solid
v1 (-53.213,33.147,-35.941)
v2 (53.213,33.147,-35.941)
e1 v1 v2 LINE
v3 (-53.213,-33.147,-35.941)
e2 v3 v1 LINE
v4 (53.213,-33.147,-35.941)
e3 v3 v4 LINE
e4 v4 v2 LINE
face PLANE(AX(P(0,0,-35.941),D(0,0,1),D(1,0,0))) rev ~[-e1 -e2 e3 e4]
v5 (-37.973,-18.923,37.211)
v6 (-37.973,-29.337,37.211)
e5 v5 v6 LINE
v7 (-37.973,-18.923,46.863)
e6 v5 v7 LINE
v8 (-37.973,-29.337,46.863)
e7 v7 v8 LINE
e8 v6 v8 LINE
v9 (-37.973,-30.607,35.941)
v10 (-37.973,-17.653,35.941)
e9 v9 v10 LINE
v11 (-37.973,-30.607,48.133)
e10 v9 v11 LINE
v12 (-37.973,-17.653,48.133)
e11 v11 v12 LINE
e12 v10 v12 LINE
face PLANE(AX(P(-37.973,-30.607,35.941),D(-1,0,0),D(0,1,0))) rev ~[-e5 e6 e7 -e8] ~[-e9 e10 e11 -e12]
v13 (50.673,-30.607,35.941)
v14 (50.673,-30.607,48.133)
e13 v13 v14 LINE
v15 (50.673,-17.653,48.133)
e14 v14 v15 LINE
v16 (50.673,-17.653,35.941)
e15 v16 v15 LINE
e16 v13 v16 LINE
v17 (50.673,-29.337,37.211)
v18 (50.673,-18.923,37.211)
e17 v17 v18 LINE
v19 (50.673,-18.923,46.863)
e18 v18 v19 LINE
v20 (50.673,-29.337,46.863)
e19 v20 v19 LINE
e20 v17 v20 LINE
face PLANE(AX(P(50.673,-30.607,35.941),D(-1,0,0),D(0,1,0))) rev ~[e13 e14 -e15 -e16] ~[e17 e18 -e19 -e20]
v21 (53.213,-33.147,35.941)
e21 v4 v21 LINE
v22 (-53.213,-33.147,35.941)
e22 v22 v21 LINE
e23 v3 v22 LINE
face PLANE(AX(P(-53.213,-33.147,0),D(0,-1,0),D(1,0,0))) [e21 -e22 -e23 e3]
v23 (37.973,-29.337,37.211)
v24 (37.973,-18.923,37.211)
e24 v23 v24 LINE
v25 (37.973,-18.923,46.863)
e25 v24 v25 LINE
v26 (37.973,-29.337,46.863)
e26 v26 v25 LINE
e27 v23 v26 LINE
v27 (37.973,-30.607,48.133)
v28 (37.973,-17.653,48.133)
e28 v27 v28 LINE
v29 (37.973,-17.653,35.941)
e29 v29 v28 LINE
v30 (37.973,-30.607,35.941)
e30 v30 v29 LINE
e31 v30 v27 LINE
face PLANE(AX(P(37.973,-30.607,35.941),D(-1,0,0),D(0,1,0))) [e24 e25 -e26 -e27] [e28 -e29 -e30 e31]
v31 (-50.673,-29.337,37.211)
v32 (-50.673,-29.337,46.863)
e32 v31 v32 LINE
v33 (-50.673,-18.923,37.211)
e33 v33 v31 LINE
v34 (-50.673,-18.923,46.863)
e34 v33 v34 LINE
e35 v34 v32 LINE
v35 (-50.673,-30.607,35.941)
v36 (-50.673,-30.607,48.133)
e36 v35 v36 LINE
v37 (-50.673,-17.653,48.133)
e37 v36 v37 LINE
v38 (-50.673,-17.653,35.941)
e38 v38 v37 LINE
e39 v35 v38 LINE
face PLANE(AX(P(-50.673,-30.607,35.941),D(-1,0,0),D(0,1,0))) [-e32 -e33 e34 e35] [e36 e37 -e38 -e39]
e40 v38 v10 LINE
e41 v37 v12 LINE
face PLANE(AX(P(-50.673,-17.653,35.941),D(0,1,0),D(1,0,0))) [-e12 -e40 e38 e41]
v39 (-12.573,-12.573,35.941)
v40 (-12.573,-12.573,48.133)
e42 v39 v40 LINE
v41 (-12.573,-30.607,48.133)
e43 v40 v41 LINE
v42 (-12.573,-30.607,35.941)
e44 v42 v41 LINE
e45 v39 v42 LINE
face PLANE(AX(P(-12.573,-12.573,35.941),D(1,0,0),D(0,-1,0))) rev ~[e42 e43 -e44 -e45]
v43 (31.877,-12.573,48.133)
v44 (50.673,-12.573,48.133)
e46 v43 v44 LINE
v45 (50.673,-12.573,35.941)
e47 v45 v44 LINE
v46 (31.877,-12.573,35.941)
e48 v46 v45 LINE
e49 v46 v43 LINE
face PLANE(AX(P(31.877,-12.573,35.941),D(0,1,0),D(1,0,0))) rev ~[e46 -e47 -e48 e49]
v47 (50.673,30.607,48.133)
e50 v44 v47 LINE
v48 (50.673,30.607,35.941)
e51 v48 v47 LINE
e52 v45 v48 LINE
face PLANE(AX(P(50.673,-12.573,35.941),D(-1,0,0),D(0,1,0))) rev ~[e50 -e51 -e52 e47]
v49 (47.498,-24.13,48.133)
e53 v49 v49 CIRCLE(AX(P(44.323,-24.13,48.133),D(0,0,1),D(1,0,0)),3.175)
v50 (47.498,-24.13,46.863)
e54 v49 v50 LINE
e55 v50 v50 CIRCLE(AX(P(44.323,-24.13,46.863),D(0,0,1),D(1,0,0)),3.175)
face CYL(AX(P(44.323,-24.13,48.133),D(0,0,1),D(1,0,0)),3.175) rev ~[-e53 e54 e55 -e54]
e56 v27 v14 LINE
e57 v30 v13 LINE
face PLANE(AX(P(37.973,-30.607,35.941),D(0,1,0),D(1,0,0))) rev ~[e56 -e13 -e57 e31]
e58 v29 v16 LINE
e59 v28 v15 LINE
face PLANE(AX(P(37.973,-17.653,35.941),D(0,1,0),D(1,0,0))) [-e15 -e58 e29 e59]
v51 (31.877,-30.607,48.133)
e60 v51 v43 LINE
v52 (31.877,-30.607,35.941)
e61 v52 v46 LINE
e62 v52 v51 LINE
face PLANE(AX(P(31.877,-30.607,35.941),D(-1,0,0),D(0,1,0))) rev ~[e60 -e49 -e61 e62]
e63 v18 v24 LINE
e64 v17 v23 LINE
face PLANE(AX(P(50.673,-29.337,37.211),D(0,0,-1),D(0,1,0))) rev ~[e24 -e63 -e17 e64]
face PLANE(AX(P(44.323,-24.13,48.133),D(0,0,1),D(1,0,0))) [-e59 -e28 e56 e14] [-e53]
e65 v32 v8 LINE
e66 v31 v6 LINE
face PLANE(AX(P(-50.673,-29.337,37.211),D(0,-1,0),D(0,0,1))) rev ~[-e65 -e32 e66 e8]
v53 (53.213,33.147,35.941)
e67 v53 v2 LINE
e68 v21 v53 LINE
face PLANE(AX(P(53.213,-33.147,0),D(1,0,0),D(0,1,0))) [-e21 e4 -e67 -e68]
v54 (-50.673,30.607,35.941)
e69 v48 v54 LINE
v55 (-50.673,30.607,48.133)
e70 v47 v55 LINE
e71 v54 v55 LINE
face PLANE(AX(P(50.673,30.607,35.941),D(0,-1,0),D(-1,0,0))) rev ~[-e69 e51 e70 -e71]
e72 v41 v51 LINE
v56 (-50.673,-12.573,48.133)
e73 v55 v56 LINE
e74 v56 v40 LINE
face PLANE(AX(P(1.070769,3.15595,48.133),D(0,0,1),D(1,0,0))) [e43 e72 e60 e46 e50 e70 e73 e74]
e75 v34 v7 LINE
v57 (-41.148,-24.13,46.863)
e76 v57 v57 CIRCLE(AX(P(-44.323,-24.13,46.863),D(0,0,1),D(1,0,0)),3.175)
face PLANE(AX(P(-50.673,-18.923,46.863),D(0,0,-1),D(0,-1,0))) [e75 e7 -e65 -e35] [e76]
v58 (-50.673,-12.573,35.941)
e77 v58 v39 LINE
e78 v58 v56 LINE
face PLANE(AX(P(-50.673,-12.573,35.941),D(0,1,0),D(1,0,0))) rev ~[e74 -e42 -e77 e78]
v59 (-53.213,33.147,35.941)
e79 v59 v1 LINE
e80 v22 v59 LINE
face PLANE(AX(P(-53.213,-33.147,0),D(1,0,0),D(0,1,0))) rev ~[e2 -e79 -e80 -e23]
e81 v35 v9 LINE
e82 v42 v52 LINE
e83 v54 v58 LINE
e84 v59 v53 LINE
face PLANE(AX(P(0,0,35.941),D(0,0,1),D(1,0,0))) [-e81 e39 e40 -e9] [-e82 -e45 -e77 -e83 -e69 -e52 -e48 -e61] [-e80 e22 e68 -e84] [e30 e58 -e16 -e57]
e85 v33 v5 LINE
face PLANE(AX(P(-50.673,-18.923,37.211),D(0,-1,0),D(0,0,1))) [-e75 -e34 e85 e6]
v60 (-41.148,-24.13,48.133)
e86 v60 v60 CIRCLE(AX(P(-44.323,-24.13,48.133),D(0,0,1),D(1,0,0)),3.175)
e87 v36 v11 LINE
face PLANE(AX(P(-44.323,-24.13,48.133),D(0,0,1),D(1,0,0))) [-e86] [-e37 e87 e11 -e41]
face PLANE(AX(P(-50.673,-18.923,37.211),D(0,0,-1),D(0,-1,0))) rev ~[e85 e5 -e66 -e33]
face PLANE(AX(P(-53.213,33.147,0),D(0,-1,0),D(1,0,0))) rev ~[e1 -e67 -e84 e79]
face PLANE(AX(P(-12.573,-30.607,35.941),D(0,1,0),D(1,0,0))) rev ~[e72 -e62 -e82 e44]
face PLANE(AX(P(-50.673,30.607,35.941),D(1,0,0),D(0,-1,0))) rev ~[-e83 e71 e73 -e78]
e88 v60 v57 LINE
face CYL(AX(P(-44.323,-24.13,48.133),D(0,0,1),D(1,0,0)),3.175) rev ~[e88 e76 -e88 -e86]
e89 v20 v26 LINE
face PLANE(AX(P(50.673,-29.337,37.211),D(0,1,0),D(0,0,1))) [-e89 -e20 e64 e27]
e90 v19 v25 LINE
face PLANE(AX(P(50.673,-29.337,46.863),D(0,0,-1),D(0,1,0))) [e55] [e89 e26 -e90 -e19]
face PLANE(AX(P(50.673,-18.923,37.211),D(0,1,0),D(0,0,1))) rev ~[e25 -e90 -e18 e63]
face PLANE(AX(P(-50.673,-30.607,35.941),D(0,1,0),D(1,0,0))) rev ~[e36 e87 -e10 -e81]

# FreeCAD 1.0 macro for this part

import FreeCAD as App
import Part
import Sketcher

V = App.Vector
Q = App.Units.Quantity


def add_polygon(sketch, points):
    """Adds a closed chain of lines whose ends are joined by coincident constraints."""
    first, n = sketch.GeometryCount, len(points)
    for a, b in zip(points, points[1:] + points[:1]):
        sketch.addGeometry(Part.LineSegment(App.Vector(*a, 0), App.Vector(*b, 0)), False)
    for i in range(n):
        sketch.addConstraint(Sketcher.Constraint("Coincident", first + i, 2, first + (i + 1) % n, 1))

doc = App.newDocument("Part")
body = doc.addObject("PartDesign::Body", "Body")

# Sketch on XY plane
sketch1 = body.newObject("Sketcher::SketchObject", "Sketch")
sketch1.AttachmentSupport = (doc.getObject("XY_Plane"), [""])
sketch1.MapMode = "FlatFace"
add_polygon(sketch1, [(-53, 33), (-53, -33), (53, -33), (53, 33)])  # lines 0-3
sketch1.addConstraint(Sketcher.Constraint("Vertical", 0))
sketch1.addConstraint(Sketcher.Constraint("Horizontal", 1))
sketch1.addConstraint(Sketcher.Constraint("Vertical", 2))
sketch1.addConstraint(Sketcher.Constraint("Horizontal", 3))
sketch1.addConstraint(Sketcher.Constraint("Symmetric", 0, 2, 2, 2, -1, 1))
sketch1.addConstraint(Sketcher.Constraint("DistanceX", 1, 1, 1, 2, Q("4.19 in")))
sketch1.addConstraint(Sketcher.Constraint("DistanceY", 0, 2, 0, 1, Q("2.61 in")))
pad1 = body.newObject("PartDesign::Pad", "Pad")
pad1.Profile = sketch1
pad1.Length = Q("2.83 in")
pad1.Midplane = True

# Sketch on XY plane
sketch2 = body.newObject("Sketcher::SketchObject", "Sketch001")
sketch2.AttachmentSupport = (doc.getObject("XY_Plane"), [""])
sketch2.MapMode = "FlatFace"
sketch2.AttachmentOffset = App.Placement(V(0, 0, 1.415 * 25.4), App.Rotation())
add_polygon(sketch2, [(51, 31), (-51, 31), (-51, -13), (-13, -13), (-13, -31), (32, -31), (32, -13), (51, -13)])  # lines 0-7
add_polygon(sketch2, [(-51, -18), (-51, -31), (-38, -31), (-38, -18)])  # lines 8-11
add_polygon(sketch2, [(38, -18), (38, -31), (51, -31), (51, -18)])  # lines 12-15
sketch2.addConstraint(Sketcher.Constraint("Horizontal", 0))
sketch2.addConstraint(Sketcher.Constraint("Vertical", 1))
sketch2.addConstraint(Sketcher.Constraint("Horizontal", 2))
sketch2.addConstraint(Sketcher.Constraint("Vertical", 3))
sketch2.addConstraint(Sketcher.Constraint("Horizontal", 4))
sketch2.addConstraint(Sketcher.Constraint("Vertical", 5))
sketch2.addConstraint(Sketcher.Constraint("Horizontal", 6))
sketch2.addConstraint(Sketcher.Constraint("Vertical", 7))
sketch2.addConstraint(Sketcher.Constraint("Vertical", 8))
sketch2.addConstraint(Sketcher.Constraint("Horizontal", 9))
sketch2.addConstraint(Sketcher.Constraint("Vertical", 10))
sketch2.addConstraint(Sketcher.Constraint("Horizontal", 11))
sketch2.addConstraint(Sketcher.Constraint("Vertical", 12))
sketch2.addConstraint(Sketcher.Constraint("Horizontal", 13))
sketch2.addConstraint(Sketcher.Constraint("Vertical", 14))
sketch2.addConstraint(Sketcher.Constraint("Horizontal", 15))
sketch2.addConstraint(Sketcher.Constraint("Symmetric", 7, 2, 8, 2, -1, 1))
sketch2.addConstraint(Sketcher.Constraint("Symmetric", 0, 2, 13, 2, -1, 1))
sketch2.addConstraint(Sketcher.Constraint("Symmetric", 1, 2, 6, 2, -2))
sketch2.addConstraint(Sketcher.Constraint("Symmetric", 10, 2, 15, 2, -2))
sketch2.addConstraint(Sketcher.Constraint("Horizontal", 4, 2, 8, 2))
sketch2.addConstraint(Sketcher.Constraint("DistanceX", 2, 1, 2, 2, Q("1.5 in")))
sketch2.addConstraint(Sketcher.Constraint("DistanceX", 9, 1, 9, 2, Q("0.5 in")))
sketch2.addConstraint(Sketcher.Constraint("DistanceY", 1, 2, 1, 1, Q("1.7 in")))
sketch2.addConstraint(Sketcher.Constraint("DistanceX", 0, 2, 0, 1, Q("3.99 in")))
sketch2.addConstraint(Sketcher.Constraint("DistanceX", 4, 1, 4, 2, Q("1.75 in")))
sketch2.addConstraint(Sketcher.Constraint("DistanceY", 3, 2, 3, 1, Q("0.71 in")))
sketch2.addConstraint(Sketcher.Constraint("DistanceY", 8, 2, 8, 1, Q("0.51 in")))
pad2 = body.newObject("PartDesign::Pad", "Pad001")
pad2.Profile = sketch2
pad2.Length = Q("0.48 in")

# Sketch on YZ plane
sketch3 = body.newObject("Sketcher::SketchObject", "Sketch002")
sketch3.AttachmentSupport = (doc.getObject("YZ_Plane"), [""])
sketch3.MapMode = "FlatFace"
sketch3.AttachmentOffset = App.Placement(V(0, 0, -1.995 * 25.4), App.Rotation())
add_polygon(sketch3, [(-19, 47), (-19, 37), (-29, 37), (-29, 47)])  # lines 0-3
sketch3.addConstraint(Sketcher.Constraint("Vertical", 0))
sketch3.addConstraint(Sketcher.Constraint("Horizontal", 1))
sketch3.addConstraint(Sketcher.Constraint("Vertical", 2))
sketch3.addConstraint(Sketcher.Constraint("Horizontal", 3))
sketch3.addConstraint(Sketcher.Constraint("DistanceX", 1, 2, 1, 1, Q("0.41 in")))
sketch3.addConstraint(Sketcher.Constraint("DistanceY", 0, 2, 0, 1, Q("0.38 in")))
sketch3.addConstraint(Sketcher.Constraint("DistanceX", 0, 2, -1, 1, Q("0.745 in")))
sketch3.addConstraint(Sketcher.Constraint("DistanceY", -1, 1, 0, 2, Q("1.465 in")))
pocket1 = body.newObject("PartDesign::Pocket", "Pocket")
pocket1.Profile = sketch3
pocket1.Length = Q("0.5 in")
pocket1.Reversed = True

# Sketch on YZ plane
sketch4 = body.newObject("Sketcher::SketchObject", "Sketch003")
sketch4.AttachmentSupport = (doc.getObject("YZ_Plane"), [""])
sketch4.MapMode = "FlatFace"
sketch4.AttachmentOffset = App.Placement(V(0, 0, 1.995 * 25.4), App.Rotation())
add_polygon(sketch4, [(-29, 47), (-29, 37), (-19, 37), (-19, 47)])  # lines 0-3
sketch4.addConstraint(Sketcher.Constraint("Vertical", 0))
sketch4.addConstraint(Sketcher.Constraint("Horizontal", 1))
sketch4.addConstraint(Sketcher.Constraint("Vertical", 2))
sketch4.addConstraint(Sketcher.Constraint("Horizontal", 3))
sketch4.addConstraint(Sketcher.Constraint("DistanceX", 1, 1, 1, 2, Q("0.41 in")))
sketch4.addConstraint(Sketcher.Constraint("DistanceY", 0, 2, 0, 1, Q("0.38 in")))
sketch4.addConstraint(Sketcher.Constraint("DistanceX", 0, 2, -1, 1, Q("1.155 in")))
sketch4.addConstraint(Sketcher.Constraint("DistanceY", -1, 1, 0, 2, Q("1.465 in")))
pocket2 = body.newObject("PartDesign::Pocket", "Pocket001")
pocket2.Profile = sketch4
pocket2.Length = Q("0.5 in")

# Sketch on XY plane
sketch5 = body.newObject("Sketcher::SketchObject", "Sketch004")
sketch5.AttachmentSupport = (doc.getObject("XY_Plane"), [""])
sketch5.MapMode = "FlatFace"
sketch5.AttachmentOffset = App.Placement(V(0, 0, 1.895 * 25.4), App.Rotation())
sketch5.addGeometry(Part.Circle(V(-44.3, -24.1, 0), V(0, 0, 1), 3.2), False)
sketch5.addConstraint(Sketcher.Constraint("Diameter", 0, Q("0.25 in")))
sketch5.addConstraint(Sketcher.Constraint("DistanceY", 0, 3, -1, 1, Q("0.95 in")))
sketch5.addConstraint(Sketcher.Constraint("DistanceX", 0, 3, -1, 1, Q("1.745 in")))
pocket3 = body.newObject("PartDesign::Pocket", "Pocket002")
pocket3.Profile = sketch5
pocket3.Length = Q("0.05 in")

# Sketch on XY plane
sketch6 = body.newObject("Sketcher::SketchObject", "Sketch005")
sketch6.AttachmentSupport = (doc.getObject("XY_Plane"), [""])
sketch6.MapMode = "FlatFace"
sketch6.AttachmentOffset = App.Placement(V(0, 0, 1.895 * 25.4), App.Rotation())
sketch6.addGeometry(Part.Circle(V(44.3, -24.1, 0), V(0, 0, 1), 3.2), False)
sketch6.addConstraint(Sketcher.Constraint("Diameter", 0, Q("0.25 in")))
sketch6.addConstraint(Sketcher.Constraint("DistanceY", 0, 3, -1, 1, Q("0.95 in")))
sketch6.addConstraint(Sketcher.Constraint("DistanceX", -1, 1, 0, 3, Q("1.745 in")))
pocket4 = body.newObject("PartDesign::Pocket", "Pocket003")
pocket4.Profile = sketch6
pocket4.Length = Q("0.05 in")

doc.recompute()
